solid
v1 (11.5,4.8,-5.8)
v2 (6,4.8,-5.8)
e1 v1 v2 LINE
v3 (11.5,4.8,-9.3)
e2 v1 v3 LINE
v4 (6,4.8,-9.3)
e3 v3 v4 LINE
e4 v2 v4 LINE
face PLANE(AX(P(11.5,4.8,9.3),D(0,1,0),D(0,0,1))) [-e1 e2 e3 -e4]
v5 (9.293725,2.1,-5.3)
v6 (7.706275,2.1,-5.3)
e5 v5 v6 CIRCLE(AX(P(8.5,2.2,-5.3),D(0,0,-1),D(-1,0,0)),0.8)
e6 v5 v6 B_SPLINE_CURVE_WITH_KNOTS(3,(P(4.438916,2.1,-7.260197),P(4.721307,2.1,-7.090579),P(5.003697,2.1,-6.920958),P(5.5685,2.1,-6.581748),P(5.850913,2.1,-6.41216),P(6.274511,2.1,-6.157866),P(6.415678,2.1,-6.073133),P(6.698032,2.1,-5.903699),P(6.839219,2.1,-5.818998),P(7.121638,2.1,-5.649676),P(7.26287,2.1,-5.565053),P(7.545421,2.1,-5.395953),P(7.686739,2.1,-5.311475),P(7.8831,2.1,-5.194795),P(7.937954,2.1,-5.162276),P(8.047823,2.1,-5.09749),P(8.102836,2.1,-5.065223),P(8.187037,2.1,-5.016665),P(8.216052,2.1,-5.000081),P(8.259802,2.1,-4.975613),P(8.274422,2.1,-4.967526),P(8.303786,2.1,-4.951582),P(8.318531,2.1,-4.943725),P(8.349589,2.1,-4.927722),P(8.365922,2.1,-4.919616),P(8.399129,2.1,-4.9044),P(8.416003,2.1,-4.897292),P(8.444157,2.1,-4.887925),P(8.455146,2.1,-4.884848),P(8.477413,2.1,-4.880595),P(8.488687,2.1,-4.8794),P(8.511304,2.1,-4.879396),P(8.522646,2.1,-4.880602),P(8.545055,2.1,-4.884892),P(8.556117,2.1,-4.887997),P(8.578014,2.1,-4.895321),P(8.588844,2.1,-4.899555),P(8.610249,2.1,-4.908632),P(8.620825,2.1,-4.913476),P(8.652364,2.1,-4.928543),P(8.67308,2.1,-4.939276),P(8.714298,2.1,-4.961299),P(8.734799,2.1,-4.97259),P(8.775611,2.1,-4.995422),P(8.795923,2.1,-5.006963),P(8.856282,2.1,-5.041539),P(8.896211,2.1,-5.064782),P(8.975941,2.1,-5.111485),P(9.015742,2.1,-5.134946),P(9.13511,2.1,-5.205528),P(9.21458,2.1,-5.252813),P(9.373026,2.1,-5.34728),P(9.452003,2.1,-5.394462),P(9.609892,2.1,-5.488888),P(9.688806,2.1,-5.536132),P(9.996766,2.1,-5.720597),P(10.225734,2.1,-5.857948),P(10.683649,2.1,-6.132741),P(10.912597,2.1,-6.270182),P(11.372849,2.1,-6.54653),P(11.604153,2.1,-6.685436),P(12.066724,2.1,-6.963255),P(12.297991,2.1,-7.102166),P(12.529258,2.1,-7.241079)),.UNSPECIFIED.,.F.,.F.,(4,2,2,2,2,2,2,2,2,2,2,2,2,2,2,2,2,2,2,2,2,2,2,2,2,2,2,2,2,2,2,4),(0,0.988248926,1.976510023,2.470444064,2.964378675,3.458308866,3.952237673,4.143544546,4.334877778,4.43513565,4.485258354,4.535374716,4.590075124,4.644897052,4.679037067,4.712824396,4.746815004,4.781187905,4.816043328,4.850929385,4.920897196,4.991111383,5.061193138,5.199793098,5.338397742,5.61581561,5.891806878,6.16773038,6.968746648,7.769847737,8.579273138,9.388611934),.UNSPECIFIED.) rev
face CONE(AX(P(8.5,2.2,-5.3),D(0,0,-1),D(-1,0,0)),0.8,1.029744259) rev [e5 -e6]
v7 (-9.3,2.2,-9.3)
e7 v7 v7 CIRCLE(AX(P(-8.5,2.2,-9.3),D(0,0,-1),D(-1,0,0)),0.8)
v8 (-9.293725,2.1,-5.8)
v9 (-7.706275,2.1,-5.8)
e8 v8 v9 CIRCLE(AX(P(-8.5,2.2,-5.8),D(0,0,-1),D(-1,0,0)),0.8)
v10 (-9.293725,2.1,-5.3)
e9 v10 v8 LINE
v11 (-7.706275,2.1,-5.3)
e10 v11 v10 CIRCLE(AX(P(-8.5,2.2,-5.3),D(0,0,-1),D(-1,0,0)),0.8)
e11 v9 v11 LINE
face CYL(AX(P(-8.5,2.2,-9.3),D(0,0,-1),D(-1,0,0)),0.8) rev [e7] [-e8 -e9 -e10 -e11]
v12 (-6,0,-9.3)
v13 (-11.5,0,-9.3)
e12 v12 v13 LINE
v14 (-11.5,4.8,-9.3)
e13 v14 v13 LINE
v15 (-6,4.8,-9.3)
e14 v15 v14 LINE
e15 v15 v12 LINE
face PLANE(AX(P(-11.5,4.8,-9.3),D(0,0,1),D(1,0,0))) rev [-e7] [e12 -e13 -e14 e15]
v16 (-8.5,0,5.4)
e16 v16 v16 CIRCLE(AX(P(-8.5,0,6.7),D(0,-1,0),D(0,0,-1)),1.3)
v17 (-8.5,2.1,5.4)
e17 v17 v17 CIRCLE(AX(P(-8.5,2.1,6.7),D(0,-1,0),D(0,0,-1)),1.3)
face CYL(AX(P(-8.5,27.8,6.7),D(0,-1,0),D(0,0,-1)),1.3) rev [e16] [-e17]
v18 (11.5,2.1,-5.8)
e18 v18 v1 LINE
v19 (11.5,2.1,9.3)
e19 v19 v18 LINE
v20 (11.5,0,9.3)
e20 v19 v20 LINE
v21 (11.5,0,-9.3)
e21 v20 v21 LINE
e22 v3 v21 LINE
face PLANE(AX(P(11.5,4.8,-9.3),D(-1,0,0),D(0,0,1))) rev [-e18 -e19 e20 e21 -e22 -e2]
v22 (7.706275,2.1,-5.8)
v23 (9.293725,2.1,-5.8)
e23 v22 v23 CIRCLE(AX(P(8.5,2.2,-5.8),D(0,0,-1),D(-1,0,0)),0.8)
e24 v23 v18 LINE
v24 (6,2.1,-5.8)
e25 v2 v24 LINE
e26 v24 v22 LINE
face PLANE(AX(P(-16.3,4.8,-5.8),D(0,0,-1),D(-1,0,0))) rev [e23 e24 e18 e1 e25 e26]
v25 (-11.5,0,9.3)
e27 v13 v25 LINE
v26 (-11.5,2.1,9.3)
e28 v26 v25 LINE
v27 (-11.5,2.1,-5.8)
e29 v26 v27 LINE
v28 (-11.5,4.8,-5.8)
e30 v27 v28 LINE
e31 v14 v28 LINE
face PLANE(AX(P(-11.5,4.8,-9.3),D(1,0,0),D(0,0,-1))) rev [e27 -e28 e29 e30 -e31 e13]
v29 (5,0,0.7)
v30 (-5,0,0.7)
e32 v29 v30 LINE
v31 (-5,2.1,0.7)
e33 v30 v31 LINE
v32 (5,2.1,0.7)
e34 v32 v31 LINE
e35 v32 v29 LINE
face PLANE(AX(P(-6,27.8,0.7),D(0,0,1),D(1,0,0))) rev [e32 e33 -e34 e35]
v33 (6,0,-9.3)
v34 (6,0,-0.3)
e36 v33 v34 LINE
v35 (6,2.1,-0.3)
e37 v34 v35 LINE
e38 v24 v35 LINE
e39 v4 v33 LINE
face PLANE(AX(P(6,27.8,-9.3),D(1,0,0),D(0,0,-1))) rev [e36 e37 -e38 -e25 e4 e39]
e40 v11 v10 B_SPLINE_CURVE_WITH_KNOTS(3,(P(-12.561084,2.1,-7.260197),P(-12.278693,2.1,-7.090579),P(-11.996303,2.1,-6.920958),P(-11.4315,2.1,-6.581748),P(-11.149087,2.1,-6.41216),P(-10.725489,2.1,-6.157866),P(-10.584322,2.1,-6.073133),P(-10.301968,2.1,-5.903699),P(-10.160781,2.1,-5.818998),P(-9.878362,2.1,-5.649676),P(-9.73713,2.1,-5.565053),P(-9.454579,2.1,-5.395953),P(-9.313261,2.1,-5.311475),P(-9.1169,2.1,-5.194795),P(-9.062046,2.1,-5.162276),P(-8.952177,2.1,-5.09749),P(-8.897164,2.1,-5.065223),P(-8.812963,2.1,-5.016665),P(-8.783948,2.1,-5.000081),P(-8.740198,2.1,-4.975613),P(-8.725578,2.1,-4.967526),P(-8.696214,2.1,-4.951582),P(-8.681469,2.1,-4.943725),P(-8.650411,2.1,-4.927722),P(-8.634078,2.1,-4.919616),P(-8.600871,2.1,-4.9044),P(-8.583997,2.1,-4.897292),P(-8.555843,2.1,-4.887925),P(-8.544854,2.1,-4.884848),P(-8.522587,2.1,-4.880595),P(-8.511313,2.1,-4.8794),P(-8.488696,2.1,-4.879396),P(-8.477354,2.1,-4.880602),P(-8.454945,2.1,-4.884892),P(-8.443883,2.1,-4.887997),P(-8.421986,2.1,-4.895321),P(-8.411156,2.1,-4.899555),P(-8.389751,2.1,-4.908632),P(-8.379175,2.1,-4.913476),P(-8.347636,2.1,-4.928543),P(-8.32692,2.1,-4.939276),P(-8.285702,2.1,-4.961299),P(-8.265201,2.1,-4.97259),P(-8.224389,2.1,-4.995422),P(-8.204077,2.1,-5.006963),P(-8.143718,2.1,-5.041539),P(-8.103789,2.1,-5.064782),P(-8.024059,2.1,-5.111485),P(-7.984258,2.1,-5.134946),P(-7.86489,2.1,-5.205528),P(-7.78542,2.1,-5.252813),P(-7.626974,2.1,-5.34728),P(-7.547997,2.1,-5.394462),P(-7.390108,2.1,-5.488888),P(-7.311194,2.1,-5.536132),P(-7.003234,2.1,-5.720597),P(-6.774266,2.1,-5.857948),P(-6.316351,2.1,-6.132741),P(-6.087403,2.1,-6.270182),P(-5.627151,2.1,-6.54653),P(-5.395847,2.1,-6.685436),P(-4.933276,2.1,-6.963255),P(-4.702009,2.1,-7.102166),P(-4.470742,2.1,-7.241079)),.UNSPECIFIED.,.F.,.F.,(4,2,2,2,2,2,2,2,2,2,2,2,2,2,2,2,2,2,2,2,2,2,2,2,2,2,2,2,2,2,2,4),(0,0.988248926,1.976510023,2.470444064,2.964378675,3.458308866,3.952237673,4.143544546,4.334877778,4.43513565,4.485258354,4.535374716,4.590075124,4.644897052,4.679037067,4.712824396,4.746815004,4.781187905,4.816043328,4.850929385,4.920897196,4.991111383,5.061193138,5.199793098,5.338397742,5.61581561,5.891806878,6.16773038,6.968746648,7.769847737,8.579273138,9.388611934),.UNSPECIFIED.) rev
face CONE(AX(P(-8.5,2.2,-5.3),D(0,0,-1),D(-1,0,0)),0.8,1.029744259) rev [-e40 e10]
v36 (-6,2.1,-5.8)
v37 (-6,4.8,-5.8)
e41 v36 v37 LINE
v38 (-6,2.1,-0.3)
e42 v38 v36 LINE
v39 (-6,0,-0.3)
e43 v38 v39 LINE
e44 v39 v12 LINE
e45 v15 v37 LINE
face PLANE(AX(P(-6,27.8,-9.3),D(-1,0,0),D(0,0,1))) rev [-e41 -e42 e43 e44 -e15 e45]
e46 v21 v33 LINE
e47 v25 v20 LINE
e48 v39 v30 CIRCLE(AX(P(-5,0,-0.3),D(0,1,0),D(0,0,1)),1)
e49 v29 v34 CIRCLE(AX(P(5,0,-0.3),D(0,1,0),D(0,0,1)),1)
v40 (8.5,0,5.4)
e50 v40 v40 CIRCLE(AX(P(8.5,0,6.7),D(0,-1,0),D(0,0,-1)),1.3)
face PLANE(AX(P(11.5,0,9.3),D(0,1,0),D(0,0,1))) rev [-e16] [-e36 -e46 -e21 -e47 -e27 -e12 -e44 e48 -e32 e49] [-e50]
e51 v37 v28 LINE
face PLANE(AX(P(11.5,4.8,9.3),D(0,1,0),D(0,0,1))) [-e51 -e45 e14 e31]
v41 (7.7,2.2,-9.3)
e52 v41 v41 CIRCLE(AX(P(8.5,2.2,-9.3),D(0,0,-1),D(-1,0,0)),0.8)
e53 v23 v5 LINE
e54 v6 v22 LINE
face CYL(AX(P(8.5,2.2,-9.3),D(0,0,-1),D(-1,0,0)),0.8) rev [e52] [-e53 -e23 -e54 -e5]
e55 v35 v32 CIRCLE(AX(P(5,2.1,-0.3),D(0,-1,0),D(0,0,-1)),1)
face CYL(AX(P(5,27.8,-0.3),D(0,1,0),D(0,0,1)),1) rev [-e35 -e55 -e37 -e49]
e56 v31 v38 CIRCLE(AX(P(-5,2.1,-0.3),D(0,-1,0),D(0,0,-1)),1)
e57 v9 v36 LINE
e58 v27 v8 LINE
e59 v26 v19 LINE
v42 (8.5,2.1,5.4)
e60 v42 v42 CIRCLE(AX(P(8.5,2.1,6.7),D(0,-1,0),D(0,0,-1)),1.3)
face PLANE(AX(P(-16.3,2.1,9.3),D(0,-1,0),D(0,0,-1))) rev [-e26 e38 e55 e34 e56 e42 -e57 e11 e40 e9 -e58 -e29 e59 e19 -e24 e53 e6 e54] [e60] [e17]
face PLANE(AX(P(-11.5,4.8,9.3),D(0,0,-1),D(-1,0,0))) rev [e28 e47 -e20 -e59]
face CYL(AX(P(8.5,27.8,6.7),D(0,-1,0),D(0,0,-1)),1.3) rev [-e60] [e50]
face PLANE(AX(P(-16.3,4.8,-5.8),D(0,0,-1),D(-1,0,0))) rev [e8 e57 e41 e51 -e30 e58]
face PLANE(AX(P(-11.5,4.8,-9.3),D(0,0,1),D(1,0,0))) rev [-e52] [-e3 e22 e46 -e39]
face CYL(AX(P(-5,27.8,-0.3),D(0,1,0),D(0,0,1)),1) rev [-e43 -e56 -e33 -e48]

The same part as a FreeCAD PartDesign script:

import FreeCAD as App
import Part
import Sketcher
from FreeCAD import Vector


def edges_at(feature, points):
    """Names of the edges that pass closest to the given points."""
    edges = feature.Shape.Edges
    near = lambda p: min(range(len(edges)), key=lambda i: edges[i].distToShape(Part.Vertex(*p))[0])
    return sorted({f"Edge{near(p) + 1}" for p in points})

doc = App.newDocument("Part")
body = doc.addObject("PartDesign::Body", "Body")

# Sketch on XZ plane
sketch1 = body.newObject("Sketcher::SketchObject", "Sketch")
sketch1.AttachmentSupport = (doc.getObject("XZ_Plane"), [""])
sketch1.MapMode = "FlatFace"
sketch1.addGeometry([
    Part.LineSegment(Vector(-12, -9, 0), Vector(-12, 9, 0)),
    Part.LineSegment(Vector(-12, 9, 0), Vector(12, 9, 0)),
    Part.LineSegment(Vector(12, 9, 0), Vector(12, -9, 0)),
    Part.LineSegment(Vector(12, -9, 0), Vector(-12, -9, 0)),
], False)
sketch1.addConstraint([
    Sketcher.Constraint("Coincident", 0, 2, 1, 1),
    Sketcher.Constraint("Coincident", 1, 2, 2, 1),
    Sketcher.Constraint("Coincident", 2, 2, 3, 1),
    Sketcher.Constraint("Coincident", 3, 2, 0, 1),
    Sketcher.Constraint("Vertical", 0),
    Sketcher.Constraint("Horizontal", 1),
    Sketcher.Constraint("Vertical", 2),
    Sketcher.Constraint("Horizontal", 3),
    Sketcher.Constraint("Symmetric", 0, 2, 2, 2, -1, 1),
    Sketcher.Constraint("DistanceX", 1, 1, 1, 2, 23.0),
    Sketcher.Constraint("DistanceY", 0, 1, 0, 2, 18.6),
])
pad1 = body.newObject("PartDesign::Pad", "Pad")
pad1.Profile = sketch1
pad1.Length = 4.8
pad1.Reversed = True

# Sketch on YZ plane
sketch2 = body.newObject("Sketcher::SketchObject", "Sketch001")
sketch2.AttachmentSupport = (doc.getObject("YZ_Plane"), [""])
sketch2.MapMode = "FlatFace"
sketch2.AttachmentOffset = App.Placement(Vector(0, 0, 11.5), App.Rotation())
sketch2.addGeometry([
    Part.LineSegment(Vector(4.8, 9.3, 0), Vector(2.1, 9.3, 0)),
    Part.LineSegment(Vector(2.1, 9.3, 0), Vector(2.1, -5.8, 0)),
    Part.LineSegment(Vector(2.1, -5.8, 0), Vector(4.8, -5.8, 0)),
    Part.LineSegment(Vector(4.8, -5.8, 0), Vector(4.8, 9.3, 0)),
], False)
sketch2.addConstraint([
    Sketcher.Constraint("Coincident", 0, 2, 1, 1),
    Sketcher.Constraint("Coincident", 1, 2, 2, 1),
    Sketcher.Constraint("Coincident", 2, 2, 3, 1),
    Sketcher.Constraint("Coincident", 3, 2, 0, 1),
    Sketcher.Constraint("Horizontal", 0),
    Sketcher.Constraint("Vertical", 1),
    Sketcher.Constraint("Horizontal", 2),
    Sketcher.Constraint("Vertical", 3),
    Sketcher.Constraint("DistanceX", 0, 2, 0, 1, 2.7),
    Sketcher.Constraint("DistanceY", 1, 2, 1, 1, 15.1),
    Sketcher.Constraint("DistanceX", -1, 1, 0, 2, 2.1),
    Sketcher.Constraint("DistanceY", -1, 1, 0, 2, 9.3),
])
pocket1 = body.newObject("PartDesign::Pocket", "Pocket")
pocket1.Profile = sketch2
pocket1.Length = 27.8

# Sketch on XZ plane
sketch3 = body.newObject("Sketcher::SketchObject", "Sketch002")
sketch3.AttachmentSupport = (doc.getObject("XZ_Plane"), [""])
sketch3.MapMode = "FlatFace"
sketch3.addGeometry([
    Part.LineSegment(Vector(-6, 1, 0), Vector(-6, -9, 0)),
    Part.LineSegment(Vector(-6, -9, 0), Vector(6, -9, 0)),
    Part.LineSegment(Vector(6, -9, 0), Vector(6, 1, 0)),
    Part.LineSegment(Vector(6, 1, 0), Vector(-6, 1, 0)),
], False)
sketch3.addConstraint([
    Sketcher.Constraint("Coincident", 0, 2, 1, 1),
    Sketcher.Constraint("Coincident", 1, 2, 2, 1),
    Sketcher.Constraint("Coincident", 2, 2, 3, 1),
    Sketcher.Constraint("Coincident", 3, 2, 0, 1),
    Sketcher.Constraint("Vertical", 0),
    Sketcher.Constraint("Horizontal", 1),
    Sketcher.Constraint("Vertical", 2),
    Sketcher.Constraint("Horizontal", 3),
    Sketcher.Constraint("DistanceX", 1, 1, 1, 2, 12.0),
    Sketcher.Constraint("DistanceY", 0, 2, 0, 1, 10.0),
    Sketcher.Constraint("DistanceX", 0, 2, -1, 1, 6.0),
    Sketcher.Constraint("DistanceY", 0, 2, -1, 1, 9.3),
])
pocket2 = body.newObject("PartDesign::Pocket", "Pocket001")
pocket2.Profile = sketch3
pocket2.Length = 27.8

# Sketch on XY plane
sketch4 = body.newObject("Sketcher::SketchObject", "Sketch003")
sketch4.AttachmentSupport = (doc.getObject("XY_Plane"), [""])
sketch4.MapMode = "FlatFace"
sketch4.AttachmentOffset = App.Placement(Vector(0, 0, -9.3), App.Rotation())
sketch4.addGeometry([
    Part.Circle(Vector(8.5, 2.2, 0), Vector(0, 0, 1), 0.8),
    Part.Circle(Vector(-8.5, 2.2, 0), Vector(0, 0, 1), 0.8),
], False)
sketch4.addConstraint([
    Sketcher.Constraint("Equal", 0, 1),
    Sketcher.Constraint("Symmetric", 0, 3, 1, 3, -2),
    Sketcher.Constraint("Diameter", 0, 1.6),
    Sketcher.Constraint("DistanceX", 1, 3, 0, 3, 17.0),
    Sketcher.Constraint("DistanceY", -1, 1, 0, 3, 2.2),
])
doc.recompute()
hole = body.newObject("PartDesign::Hole", "Hole")
hole.Profile = sketch4
hole.ThreadType = "None"
hole.Diameter = 1.6
hole.DepthType = "Dimension"
hole.Depth = 4
hole.DrillPoint = "Angled"
hole.DrillPointAngle = 118
hole.Reversed = True

# Sketch on XZ plane
sketch5 = body.newObject("Sketcher::SketchObject", "Sketch004")
sketch5.AttachmentSupport = (doc.getObject("XZ_Plane"), [""])
sketch5.MapMode = "FlatFace"
sketch5.addGeometry([
    Part.Circle(Vector(-8.5, 6.7, 0), Vector(0, 0, 1), 1.3),
    Part.Circle(Vector(8.5, 6.7, 0), Vector(0, 0, 1), 1.3),
], False)
sketch5.addConstraint([
    Sketcher.Constraint("Equal", 0, 1),
    Sketcher.Constraint("Symmetric", 0, 3, 1, 3, -2),
    Sketcher.Constraint("Diameter", 0, 2.6),
    Sketcher.Constraint("DistanceX", 0, 3, 1, 3, 17.0),
    Sketcher.Constraint("DistanceY", -1, 1, 0, 3, 6.7),
])
pocket3 = body.newObject("PartDesign::Pocket", "Pocket002")
pocket3.Profile = sketch5
pocket3.Length = 27.8
doc.recompute()

fillet = body.newObject("PartDesign::Fillet", "Fillet")
fillet.Base = (pocket3, edges_at(pocket3, [(-6, 1.05, 0.7), (6, 1.05, 0.7)]))
fillet.Radius = 1

doc.recompute()
